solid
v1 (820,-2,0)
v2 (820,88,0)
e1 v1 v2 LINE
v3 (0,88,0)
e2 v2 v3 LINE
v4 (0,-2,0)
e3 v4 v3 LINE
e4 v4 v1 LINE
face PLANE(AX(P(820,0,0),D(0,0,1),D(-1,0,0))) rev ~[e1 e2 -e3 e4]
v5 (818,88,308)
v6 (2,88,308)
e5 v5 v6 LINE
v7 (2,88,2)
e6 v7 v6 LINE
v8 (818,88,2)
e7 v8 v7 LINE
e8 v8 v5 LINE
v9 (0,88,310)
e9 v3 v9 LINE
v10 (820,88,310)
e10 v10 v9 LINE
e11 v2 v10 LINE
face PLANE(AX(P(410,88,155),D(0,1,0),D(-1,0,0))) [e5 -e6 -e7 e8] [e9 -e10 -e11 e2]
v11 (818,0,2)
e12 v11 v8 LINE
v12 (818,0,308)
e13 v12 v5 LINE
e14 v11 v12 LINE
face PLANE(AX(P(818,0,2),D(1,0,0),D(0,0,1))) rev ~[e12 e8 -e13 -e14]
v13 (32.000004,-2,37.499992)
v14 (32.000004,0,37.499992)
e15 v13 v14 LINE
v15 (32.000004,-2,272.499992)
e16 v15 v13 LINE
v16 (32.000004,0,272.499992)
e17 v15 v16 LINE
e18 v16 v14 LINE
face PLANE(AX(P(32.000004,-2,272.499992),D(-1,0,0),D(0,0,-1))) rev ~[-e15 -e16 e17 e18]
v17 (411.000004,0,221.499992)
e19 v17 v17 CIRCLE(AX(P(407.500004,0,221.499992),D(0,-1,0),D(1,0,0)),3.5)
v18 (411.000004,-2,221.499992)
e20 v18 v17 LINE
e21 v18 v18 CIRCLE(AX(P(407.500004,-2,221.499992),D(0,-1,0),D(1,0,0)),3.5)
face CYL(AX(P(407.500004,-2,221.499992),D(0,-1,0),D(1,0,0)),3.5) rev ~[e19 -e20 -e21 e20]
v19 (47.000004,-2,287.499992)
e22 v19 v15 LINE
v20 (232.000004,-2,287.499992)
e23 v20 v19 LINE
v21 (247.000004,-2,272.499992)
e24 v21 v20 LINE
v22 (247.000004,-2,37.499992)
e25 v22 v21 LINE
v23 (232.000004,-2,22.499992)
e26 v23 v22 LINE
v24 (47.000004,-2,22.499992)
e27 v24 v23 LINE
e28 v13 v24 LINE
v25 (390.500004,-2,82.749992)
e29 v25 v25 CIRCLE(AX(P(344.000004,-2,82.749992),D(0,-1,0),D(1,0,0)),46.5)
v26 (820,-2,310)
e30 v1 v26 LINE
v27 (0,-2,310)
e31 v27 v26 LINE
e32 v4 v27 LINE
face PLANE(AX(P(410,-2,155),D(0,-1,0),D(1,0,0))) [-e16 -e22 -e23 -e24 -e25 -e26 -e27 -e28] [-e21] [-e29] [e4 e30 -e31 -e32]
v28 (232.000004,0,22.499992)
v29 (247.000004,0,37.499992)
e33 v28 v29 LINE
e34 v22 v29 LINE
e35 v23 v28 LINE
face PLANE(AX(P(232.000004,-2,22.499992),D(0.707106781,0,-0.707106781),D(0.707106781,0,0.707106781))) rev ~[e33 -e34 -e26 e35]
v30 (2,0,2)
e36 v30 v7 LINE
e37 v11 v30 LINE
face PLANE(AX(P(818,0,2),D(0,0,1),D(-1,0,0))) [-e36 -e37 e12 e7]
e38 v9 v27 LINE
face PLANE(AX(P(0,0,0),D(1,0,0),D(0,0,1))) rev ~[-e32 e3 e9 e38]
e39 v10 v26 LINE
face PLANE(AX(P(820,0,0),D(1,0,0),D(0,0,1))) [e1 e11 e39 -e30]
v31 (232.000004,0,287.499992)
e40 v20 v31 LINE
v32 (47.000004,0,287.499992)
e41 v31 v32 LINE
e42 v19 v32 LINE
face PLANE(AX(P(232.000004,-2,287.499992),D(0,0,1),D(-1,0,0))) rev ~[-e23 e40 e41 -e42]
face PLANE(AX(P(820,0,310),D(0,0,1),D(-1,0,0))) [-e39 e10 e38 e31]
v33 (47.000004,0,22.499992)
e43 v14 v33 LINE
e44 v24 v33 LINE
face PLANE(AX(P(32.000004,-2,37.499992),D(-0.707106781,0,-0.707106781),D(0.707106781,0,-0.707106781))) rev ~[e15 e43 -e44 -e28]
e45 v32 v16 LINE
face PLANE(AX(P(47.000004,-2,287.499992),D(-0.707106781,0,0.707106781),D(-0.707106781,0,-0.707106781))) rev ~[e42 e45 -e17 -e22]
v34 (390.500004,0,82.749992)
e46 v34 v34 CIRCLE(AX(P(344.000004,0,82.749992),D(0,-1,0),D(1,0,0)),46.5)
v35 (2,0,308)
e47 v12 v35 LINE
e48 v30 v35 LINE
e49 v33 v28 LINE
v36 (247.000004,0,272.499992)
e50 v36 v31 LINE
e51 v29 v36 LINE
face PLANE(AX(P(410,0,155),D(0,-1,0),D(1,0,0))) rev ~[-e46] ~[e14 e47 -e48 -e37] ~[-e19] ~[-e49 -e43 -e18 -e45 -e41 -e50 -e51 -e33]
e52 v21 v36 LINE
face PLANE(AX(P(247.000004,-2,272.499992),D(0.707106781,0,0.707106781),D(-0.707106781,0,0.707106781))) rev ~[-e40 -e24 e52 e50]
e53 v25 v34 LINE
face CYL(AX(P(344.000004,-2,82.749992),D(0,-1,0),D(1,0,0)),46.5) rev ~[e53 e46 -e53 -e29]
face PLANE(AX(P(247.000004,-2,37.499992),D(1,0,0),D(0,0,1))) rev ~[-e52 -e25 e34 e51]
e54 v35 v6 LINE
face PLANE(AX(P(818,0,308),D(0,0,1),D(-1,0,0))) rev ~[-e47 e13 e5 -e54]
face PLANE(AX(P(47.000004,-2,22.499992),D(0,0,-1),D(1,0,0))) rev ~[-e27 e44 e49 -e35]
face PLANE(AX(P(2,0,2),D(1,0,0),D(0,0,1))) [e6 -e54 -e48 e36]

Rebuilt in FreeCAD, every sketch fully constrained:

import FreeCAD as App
import Part
import Sketcher


def add_polygon(sketch, points):
    """Adds a closed chain of lines whose ends are joined by coincident constraints."""
    first, n = sketch.GeometryCount, len(points)
    for a, b in zip(points, points[1:] + points[:1]):
        sketch.addGeometry(Part.LineSegment(App.Vector(*a, 0), App.Vector(*b, 0)), False)
    for i in range(n):
        sketch.addConstraint(Sketcher.Constraint("Coincident", first + i, 2, first + (i + 1) % n, 1))

doc = App.newDocument("Part")
params = doc.addObject("Spreadsheet::Sheet", "Params")
for row, (alias, value) in enumerate([
    ("sketch1_width", "820 mm"),
    ("sketch1_height", "310 mm"),
    ("pad1_length", "2 mm"),
    ("sketch2_width", "820 mm"),
    ("sketch2_width2", "816 mm"),
    ("sketch2_height", "310 mm"),
    ("sketch2_height2", "306 mm"),
    ("pad2_length", "88 mm"),
    ("sketch3_diameter", "93 mm"),
    ("sketch3_diameter2", "7 mm"),
    ("sketch3_width", "185 mm"),
    ("sketch3_height", "235 mm"),
], start=1):
    params.set(f"A{row}", alias)
    params.set(f"B{row}", "=" + value)
    params.setAlias(f"B{row}", alias)

body = doc.addObject("PartDesign::Body", "Body")

sketch1 = doc.addObject("Sketcher::SketchObject", "Sketch")
body.addObject(sketch1)
sketch1.AttachmentSupport = (doc.XZ_Plane, [""])
sketch1.MapMode = "FlatFace"
add_polygon(sketch1, [(0, 310), (0, 0), (820, 0), (820, 310)])
sketch1.addConstraint([
    Sketcher.Constraint("Vertical", 0),
    Sketcher.Constraint("Horizontal", 1),
    Sketcher.Constraint("Vertical", 2),
    Sketcher.Constraint("Horizontal", 3),
    Sketcher.Constraint("Coincident", 0, 2, -1, 1),
    Sketcher.Constraint("DistanceX", 1, 1, 1, 2, 820.0),
    Sketcher.Constraint("DistanceY", 0, 2, 0, 1, 310.0),
])
sketch1.setExpression("Constraints[9]", "Params.sketch1_width")
sketch1.setExpression("Constraints[10]", "Params.sketch1_height")
pad1 = doc.addObject("PartDesign::Pad", "Pad")
body.addObject(pad1)
pad1.Profile = sketch1
pad1.setExpression("Length", "Params.pad1_length")

sketch2 = doc.addObject("Sketcher::SketchObject", "Sketch001")
body.addObject(sketch2)
sketch2.AttachmentSupport = (doc.XZ_Plane, [""])
sketch2.MapMode = "FlatFace"
add_polygon(sketch2, [(820, 310), (820, 0), (0, 0), (0, 310)])
add_polygon(sketch2, [(2, 2), (818, 2), (818, 308), (2, 308)])
sketch2.addConstraint([
    Sketcher.Constraint("Vertical", 0),
    Sketcher.Constraint("Horizontal", 1),
    Sketcher.Constraint("Vertical", 2),
    Sketcher.Constraint("Horizontal", 3),
    Sketcher.Constraint("Horizontal", 4),
    Sketcher.Constraint("Vertical", 5),
    Sketcher.Constraint("Horizontal", 6),
    Sketcher.Constraint("Vertical", 7),
    Sketcher.Constraint("Coincident", 1, 2, -1, 1),
    Sketcher.Constraint("DistanceX", 1, 2, 1, 1, 820.0),
    Sketcher.Constraint("DistanceX", 4, 1, 4, 2, 816.0),
    Sketcher.Constraint("DistanceY", 0, 2, 0, 1, 310.0),
    Sketcher.Constraint("DistanceY", 5, 1, 5, 2, 306.0),
    Sketcher.Constraint("DistanceX", -1, 1, 4, 2, 818.0),
    Sketcher.Constraint("DistanceY", -1, 1, 4, 2, 2.0),
])
sketch2.setExpression("Constraints[17]", "Params.sketch2_width")
sketch2.setExpression("Constraints[18]", "Params.sketch2_width2")
sketch2.setExpression("Constraints[19]", "Params.sketch2_height")
sketch2.setExpression("Constraints[20]", "Params.sketch2_height2")
pad2 = doc.addObject("PartDesign::Pad", "Pad001")
body.addObject(pad2)
pad2.Profile = sketch2
pad2.setExpression("Length", "Params.pad2_length")
pad2.Reversed = True

sketch3 = doc.addObject("Sketcher::SketchObject", "Sketch002")
body.addObject(sketch3)
sketch3.AttachmentSupport = (doc.XZ_Plane, [""])
sketch3.MapMode = "FlatFace"
sketch3.AttachmentOffset = App.Placement(App.Vector(0, 0, 2), App.Rotation())
add_polygon(sketch3, [(47, 287.5), (32, 272.5), (32, 37.5), (47, 22.5), (232, 22.5), (247, 37.5), (247, 272.5), (232, 287.5)])
sketch3.addGeometry(Part.Circle(App.Vector(344, 82.7, 0), App.Vector(0, 0, 1), 46.5), False)
sketch3.addGeometry(Part.Circle(App.Vector(407.5, 221.5, 0), App.Vector(0, 0, 1), 3.5), False)
sketch3.addConstraint([
    Sketcher.Constraint("Vertical", 1),
    Sketcher.Constraint("Horizontal", 3),
    Sketcher.Constraint("Vertical", 5),
    Sketcher.Constraint("Horizontal", 7),
    Sketcher.Constraint("Perpendicular", 0, 2),
    Sketcher.Constraint("Perpendicular", 2, 4),
    Sketcher.Constraint("Perpendicular", 4, 6),
    Sketcher.Constraint("Horizontal", 1, 2, 4, 2),
    Sketcher.Constraint("Horizontal", 0, 2, 5, 2),
    Sketcher.Constraint("Vertical", 3, 2, 6, 2),
    Sketcher.Constraint("Vertical", 2, 2, 7, 2),
    Sketcher.Constraint("Diameter", 8, 93.0),
    Sketcher.Constraint("Diameter", 9, 7.0),
    Sketcher.Constraint("DistanceX", 3, 1, 3, 2, 185.0),
    Sketcher.Constraint("DistanceY", 1, 2, 1, 1, 235.0),
    Sketcher.Constraint("DistanceX", 0, 2, 8, 3, 312.0),
    Sketcher.Constraint("DistanceY", 9, 3, 0, 2, 51.0),
    Sketcher.Constraint("DistanceX", 1, 2, 2, 2, 15.0),
    Sketcher.Constraint("DistanceX", 8, 3, 9, 3, 63.5),
    Sketcher.Constraint("DistanceY", 8, 3, 9, 3, 138.75),
    Sketcher.Constraint("DistanceY", -1, 1, 9, 3, 221.499992),
    Sketcher.Constraint("DistanceX", -1, 1, 8, 3, 344.000004),
])
sketch3.setExpression("Constraints[19]", "Params.sketch3_diameter")
sketch3.setExpression("Constraints[20]", "Params.sketch3_diameter2")
sketch3.setExpression("Constraints[21]", "Params.sketch3_width")
sketch3.setExpression("Constraints[22]", "Params.sketch3_height")
pocket1 = doc.addObject("PartDesign::Pocket", "Pocket")
body.addObject(pocket1)
pocket1.Profile = sketch3
pocket1.Type = "ThroughAll"

doc.recompute()
